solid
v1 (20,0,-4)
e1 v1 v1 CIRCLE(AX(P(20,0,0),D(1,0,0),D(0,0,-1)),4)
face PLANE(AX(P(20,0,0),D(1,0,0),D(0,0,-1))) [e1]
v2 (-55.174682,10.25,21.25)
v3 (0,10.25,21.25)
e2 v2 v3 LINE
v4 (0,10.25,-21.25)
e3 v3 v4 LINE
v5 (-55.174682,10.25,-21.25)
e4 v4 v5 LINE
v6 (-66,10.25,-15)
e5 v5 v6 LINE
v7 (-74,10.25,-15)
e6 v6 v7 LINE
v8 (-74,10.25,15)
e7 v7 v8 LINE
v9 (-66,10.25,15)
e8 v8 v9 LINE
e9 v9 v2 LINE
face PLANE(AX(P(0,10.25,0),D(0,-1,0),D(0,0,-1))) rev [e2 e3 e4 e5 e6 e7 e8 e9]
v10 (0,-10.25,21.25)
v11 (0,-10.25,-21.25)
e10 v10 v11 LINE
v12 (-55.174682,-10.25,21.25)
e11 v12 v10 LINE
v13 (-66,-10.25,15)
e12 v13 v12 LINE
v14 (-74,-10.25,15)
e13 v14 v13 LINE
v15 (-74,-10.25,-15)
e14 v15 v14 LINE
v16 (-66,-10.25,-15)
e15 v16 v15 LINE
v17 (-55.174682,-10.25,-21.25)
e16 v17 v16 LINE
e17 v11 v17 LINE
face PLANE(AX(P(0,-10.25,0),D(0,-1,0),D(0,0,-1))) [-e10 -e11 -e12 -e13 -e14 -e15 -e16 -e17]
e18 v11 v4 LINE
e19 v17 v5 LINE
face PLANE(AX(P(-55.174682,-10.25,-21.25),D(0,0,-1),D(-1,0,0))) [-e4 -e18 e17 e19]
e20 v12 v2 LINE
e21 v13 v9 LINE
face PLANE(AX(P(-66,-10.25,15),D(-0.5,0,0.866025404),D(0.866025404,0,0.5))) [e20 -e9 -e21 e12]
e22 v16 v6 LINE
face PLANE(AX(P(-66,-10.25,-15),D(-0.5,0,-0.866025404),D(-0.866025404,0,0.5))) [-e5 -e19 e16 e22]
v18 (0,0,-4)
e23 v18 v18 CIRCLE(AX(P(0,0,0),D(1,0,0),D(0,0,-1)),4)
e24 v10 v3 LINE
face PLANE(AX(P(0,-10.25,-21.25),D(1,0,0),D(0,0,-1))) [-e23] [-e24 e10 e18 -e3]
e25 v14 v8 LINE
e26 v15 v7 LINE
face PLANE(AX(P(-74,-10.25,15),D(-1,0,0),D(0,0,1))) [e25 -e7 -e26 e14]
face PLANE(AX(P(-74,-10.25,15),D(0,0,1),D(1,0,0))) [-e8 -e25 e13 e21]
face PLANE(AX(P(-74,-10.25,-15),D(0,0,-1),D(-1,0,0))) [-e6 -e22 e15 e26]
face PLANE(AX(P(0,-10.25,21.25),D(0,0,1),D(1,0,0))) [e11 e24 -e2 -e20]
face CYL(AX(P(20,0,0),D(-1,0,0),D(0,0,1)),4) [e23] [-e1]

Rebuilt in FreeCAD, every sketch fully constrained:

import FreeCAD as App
import Part
import Sketcher

V = App.Vector
Q = App.Units.Quantity

doc = App.newDocument("Part")
body = doc.addObject("PartDesign::Body", "Body")

sketch1 = doc.addObject("Sketcher::SketchObject", "Sketch")
body.addObject(sketch1)
sketch1.AttachmentSupport = (doc.XZ_Plane, [""])
sketch1.MapMode = "FlatFace"
sketch1.addGeometry(Part.LineSegment(V(0, 21, 0), V(0, -21, 0)), False)
sketch1.addGeometry(Part.LineSegment(V(0, -21, 0), V(-55, -21, 0)), False)
sketch1.addGeometry(Part.LineSegment(V(-55, -21, 0), V(-66, -15, 0)), False)
sketch1.addGeometry(Part.LineSegment(V(-66, -15, 0), V(-74, -15, 0)), False)
sketch1.addGeometry(Part.LineSegment(V(-74, -15, 0), V(-74, 15, 0)), False)
sketch1.addGeometry(Part.LineSegment(V(-74, 15, 0), V(-66, 15, 0)), False)
sketch1.addGeometry(Part.LineSegment(V(-66, 15, 0), V(-55, 21, 0)), False)
sketch1.addGeometry(Part.LineSegment(V(-55, 21, 0), V(0, 21, 0)), False)
sketch1.addConstraint(Sketcher.Constraint("Coincident", 0, 2, 1, 1))
sketch1.addConstraint(Sketcher.Constraint("Coincident", 1, 2, 2, 1))
sketch1.addConstraint(Sketcher.Constraint("Coincident", 2, 2, 3, 1))
sketch1.addConstraint(Sketcher.Constraint("Coincident", 3, 2, 4, 1))
sketch1.addConstraint(Sketcher.Constraint("Coincident", 4, 2, 5, 1))
sketch1.addConstraint(Sketcher.Constraint("Coincident", 5, 2, 6, 1))
sketch1.addConstraint(Sketcher.Constraint("Coincident", 6, 2, 7, 1))
sketch1.addConstraint(Sketcher.Constraint("Coincident", 7, 2, 0, 1))
sketch1.addConstraint(Sketcher.Constraint("Vertical", 0))
sketch1.addConstraint(Sketcher.Constraint("Horizontal", 1))
sketch1.addConstraint(Sketcher.Constraint("Horizontal", 3))
sketch1.addConstraint(Sketcher.Constraint("Vertical", 4))
sketch1.addConstraint(Sketcher.Constraint("Horizontal", 5))
sketch1.addConstraint(Sketcher.Constraint("Horizontal", 7))
sketch1.addConstraint(Sketcher.Constraint("Symmetric", 0, 2, 7, 2, -1, 1))
sketch1.addConstraint(Sketcher.Constraint("Symmetric", 2, 2, 5, 2, -1))
sketch1.addConstraint(Sketcher.Constraint("Vertical", 1, 2, 6, 2))
sketch1.addConstraint(Sketcher.Constraint("DistanceX", 3, 2, 3, 1, Q("8 mm")))
sketch1.addConstraint(Sketcher.Constraint("DistanceY", 4, 1, 4, 2, Q("30 mm")))
sketch1.addConstraint(Sketcher.Constraint("Angle", 2, Q("150 deg")))
sketch1.addConstraint(Sketcher.Constraint("DistanceY", 0, 2, 0, 1, Q("42.5 mm")))
sketch1.addConstraint(Sketcher.Constraint("DistanceX", 2, 2, -1, 1, Q("66 mm")))
pad1 = doc.addObject("PartDesign::Pad", "Pad")
body.addObject(pad1)
pad1.Profile = sketch1
pad1.Type = "TwoLengths"
pad1.Length = 10.25
pad1.Length2 = 10.25
pad1.Reversed = True

sketch2 = doc.addObject("Sketcher::SketchObject", "Sketch001")
body.addObject(sketch2)
sketch2.AttachmentSupport = (doc.YZ_Plane, [""])
sketch2.MapMode = "FlatFace"
sketch2.addGeometry(Part.Circle(V(0, 0, 0), V(0, 0, 1), 4), False)
sketch2.addConstraint(Sketcher.Constraint("Coincident", 0, 3, -1, 1))
sketch2.addConstraint(Sketcher.Constraint("Diameter", 0, Q("8 mm")))
pad2 = doc.addObject("PartDesign::Pad", "Pad001")
body.addObject(pad2)
pad2.Profile = sketch2
pad2.Length = 20

doc.recompute()
